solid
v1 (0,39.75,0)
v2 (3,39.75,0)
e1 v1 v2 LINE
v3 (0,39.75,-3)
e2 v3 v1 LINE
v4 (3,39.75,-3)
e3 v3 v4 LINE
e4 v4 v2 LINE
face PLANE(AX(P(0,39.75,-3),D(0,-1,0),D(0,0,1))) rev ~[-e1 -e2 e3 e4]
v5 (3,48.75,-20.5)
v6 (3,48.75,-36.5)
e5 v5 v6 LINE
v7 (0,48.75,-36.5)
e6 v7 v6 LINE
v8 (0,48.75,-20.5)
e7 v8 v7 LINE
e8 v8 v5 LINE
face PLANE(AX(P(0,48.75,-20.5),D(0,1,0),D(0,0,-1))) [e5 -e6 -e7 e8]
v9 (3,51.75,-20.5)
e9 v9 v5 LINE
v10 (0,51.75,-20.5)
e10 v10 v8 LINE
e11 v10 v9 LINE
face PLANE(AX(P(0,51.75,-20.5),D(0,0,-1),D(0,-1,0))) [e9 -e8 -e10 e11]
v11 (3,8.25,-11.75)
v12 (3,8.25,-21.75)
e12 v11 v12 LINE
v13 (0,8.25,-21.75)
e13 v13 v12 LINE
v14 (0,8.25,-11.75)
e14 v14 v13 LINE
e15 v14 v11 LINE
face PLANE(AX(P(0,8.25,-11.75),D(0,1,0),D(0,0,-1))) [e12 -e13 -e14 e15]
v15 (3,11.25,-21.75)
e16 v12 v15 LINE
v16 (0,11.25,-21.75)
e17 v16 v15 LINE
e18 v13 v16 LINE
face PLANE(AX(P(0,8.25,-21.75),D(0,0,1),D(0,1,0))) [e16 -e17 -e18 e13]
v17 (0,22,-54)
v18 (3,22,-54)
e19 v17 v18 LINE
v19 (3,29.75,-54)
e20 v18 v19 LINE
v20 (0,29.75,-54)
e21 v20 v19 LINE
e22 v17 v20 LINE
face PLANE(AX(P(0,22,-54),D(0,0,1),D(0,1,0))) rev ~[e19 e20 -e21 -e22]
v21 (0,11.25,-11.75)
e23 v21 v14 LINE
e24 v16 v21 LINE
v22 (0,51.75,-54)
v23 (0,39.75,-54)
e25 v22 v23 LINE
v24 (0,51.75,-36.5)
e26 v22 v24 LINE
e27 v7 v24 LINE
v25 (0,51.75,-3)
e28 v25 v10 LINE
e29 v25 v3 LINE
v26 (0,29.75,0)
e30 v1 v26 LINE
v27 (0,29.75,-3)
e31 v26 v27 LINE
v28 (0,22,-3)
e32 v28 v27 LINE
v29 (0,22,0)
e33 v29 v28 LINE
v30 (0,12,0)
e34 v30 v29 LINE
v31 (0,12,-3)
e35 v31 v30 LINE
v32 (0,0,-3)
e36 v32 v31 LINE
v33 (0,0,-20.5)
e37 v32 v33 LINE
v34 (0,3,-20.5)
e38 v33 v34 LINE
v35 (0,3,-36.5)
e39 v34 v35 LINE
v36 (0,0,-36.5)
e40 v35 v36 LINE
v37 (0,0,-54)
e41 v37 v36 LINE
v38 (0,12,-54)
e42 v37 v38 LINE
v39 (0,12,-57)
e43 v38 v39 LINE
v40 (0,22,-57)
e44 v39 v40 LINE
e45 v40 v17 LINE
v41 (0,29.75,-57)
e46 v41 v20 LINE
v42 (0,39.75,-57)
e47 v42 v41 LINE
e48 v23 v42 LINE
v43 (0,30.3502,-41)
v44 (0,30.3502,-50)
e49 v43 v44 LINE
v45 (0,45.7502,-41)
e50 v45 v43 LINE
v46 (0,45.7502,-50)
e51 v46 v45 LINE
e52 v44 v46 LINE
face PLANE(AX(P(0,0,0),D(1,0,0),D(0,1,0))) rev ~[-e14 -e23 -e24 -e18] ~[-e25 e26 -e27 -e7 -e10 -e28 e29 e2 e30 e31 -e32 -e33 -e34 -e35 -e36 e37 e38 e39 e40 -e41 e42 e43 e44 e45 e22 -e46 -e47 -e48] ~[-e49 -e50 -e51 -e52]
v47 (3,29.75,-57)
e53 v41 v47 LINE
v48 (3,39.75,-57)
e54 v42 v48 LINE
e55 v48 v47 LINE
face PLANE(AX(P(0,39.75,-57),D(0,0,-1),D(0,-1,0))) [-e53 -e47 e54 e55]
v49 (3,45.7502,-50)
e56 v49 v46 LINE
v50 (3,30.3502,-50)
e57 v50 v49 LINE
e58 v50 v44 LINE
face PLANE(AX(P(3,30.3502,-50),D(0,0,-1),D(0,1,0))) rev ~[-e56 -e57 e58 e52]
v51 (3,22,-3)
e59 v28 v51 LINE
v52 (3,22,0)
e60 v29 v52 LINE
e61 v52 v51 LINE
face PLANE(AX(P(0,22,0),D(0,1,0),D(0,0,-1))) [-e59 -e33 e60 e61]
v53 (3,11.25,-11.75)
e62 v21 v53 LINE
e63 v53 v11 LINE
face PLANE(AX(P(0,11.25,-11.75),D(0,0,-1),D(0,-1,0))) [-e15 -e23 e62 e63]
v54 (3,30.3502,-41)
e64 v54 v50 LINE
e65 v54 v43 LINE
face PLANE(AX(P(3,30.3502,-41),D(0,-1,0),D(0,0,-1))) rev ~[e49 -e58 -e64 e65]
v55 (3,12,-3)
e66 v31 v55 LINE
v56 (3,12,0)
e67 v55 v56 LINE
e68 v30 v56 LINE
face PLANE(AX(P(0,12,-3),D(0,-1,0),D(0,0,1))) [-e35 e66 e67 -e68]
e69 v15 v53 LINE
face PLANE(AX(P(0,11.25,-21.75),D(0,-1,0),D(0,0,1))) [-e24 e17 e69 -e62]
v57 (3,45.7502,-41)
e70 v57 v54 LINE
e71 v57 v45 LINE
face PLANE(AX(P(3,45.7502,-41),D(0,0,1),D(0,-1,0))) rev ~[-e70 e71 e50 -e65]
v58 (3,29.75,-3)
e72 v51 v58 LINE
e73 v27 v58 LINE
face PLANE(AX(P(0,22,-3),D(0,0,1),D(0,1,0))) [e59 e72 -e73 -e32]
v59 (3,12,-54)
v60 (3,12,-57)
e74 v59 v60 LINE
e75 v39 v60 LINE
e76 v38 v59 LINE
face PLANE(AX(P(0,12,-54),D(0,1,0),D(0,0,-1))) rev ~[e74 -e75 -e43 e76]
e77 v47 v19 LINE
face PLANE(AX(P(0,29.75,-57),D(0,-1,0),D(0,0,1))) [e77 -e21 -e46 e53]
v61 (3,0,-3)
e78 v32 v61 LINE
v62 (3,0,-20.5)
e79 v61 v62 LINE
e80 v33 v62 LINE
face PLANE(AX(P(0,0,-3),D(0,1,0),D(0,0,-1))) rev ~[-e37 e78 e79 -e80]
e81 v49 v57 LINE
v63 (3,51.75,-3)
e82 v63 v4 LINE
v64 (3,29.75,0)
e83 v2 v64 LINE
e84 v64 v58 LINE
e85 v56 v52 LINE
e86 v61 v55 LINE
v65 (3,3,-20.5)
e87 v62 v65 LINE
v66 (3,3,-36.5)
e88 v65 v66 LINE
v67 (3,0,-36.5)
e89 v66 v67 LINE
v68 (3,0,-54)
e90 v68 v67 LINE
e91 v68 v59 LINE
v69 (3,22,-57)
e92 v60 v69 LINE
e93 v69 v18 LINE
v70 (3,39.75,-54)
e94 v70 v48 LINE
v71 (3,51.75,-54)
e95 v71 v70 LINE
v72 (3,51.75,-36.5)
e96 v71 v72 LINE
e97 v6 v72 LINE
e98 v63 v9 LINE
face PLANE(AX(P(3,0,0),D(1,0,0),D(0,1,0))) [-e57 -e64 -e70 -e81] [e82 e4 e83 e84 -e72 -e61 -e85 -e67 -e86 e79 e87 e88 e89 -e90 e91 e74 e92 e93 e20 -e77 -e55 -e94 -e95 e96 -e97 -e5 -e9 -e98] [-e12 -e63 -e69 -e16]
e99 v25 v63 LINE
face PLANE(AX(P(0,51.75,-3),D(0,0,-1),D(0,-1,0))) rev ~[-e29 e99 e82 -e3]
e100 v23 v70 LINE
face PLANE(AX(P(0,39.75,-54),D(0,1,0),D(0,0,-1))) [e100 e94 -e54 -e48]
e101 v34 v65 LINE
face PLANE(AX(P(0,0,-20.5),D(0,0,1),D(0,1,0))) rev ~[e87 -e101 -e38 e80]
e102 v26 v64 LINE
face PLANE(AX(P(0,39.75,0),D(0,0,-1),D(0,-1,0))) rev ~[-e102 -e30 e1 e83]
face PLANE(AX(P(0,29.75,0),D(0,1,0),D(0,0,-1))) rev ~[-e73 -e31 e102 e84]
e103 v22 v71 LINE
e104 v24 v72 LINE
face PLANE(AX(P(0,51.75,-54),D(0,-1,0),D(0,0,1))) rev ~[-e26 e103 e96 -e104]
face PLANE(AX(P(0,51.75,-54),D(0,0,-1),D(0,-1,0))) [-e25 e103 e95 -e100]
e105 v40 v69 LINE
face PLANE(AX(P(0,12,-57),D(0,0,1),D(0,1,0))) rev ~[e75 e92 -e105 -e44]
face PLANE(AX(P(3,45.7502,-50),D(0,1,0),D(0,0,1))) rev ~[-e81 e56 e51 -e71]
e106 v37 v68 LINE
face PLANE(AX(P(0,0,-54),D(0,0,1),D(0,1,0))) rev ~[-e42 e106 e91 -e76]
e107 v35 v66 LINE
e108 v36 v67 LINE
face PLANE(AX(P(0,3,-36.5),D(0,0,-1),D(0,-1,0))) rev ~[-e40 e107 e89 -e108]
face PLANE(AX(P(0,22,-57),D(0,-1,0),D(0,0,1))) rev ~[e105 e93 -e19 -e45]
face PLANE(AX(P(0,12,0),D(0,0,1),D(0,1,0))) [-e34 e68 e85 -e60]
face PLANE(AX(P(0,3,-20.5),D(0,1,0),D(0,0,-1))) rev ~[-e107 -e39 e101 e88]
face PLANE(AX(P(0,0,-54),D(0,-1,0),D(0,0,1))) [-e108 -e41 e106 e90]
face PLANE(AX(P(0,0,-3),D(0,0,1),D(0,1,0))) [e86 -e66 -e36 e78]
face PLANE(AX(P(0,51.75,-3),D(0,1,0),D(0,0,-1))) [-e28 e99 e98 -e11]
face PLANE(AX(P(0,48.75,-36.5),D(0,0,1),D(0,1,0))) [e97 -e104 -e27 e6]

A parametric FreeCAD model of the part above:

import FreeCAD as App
import Part
import Sketcher

V = App.Vector

doc = App.newDocument("Part")
body = doc.addObject("PartDesign::Body", "Body")

sketch1 = doc.addObject("Sketcher::SketchObject", "Sketch")
body.addObject(sketch1)
sketch1.AttachmentSupport = (doc.YZ_Plane, [""])
sketch1.MapMode = "FlatFace"
sketch1.addGeometry(Part.LineSegment(V(12, -3, 0), V(0, -3, 0)), False)
sketch1.addGeometry(Part.LineSegment(V(0, -3, 0), V(0, -20.5, 0)), False)
sketch1.addGeometry(Part.LineSegment(V(0, -20.5, 0), V(3, -20.5, 0)), False)
sketch1.addGeometry(Part.LineSegment(V(3, -20.5, 0), V(3, -36.5, 0)), False)
sketch1.addGeometry(Part.LineSegment(V(3, -36.5, 0), V(0, -36.5, 0)), False)
sketch1.addGeometry(Part.LineSegment(V(0, -36.5, 0), V(0, -54, 0)), False)
sketch1.addGeometry(Part.LineSegment(V(0, -54, 0), V(12, -54, 0)), False)
sketch1.addGeometry(Part.LineSegment(V(12, -54, 0), V(12, -57, 0)), False)
sketch1.addGeometry(Part.LineSegment(V(12, -57, 0), V(22, -57, 0)), False)
sketch1.addGeometry(Part.LineSegment(V(22, -57, 0), V(22, -54, 0)), False)
sketch1.addGeometry(Part.LineSegment(V(22, -54, 0), V(29.8, -54, 0)), False)
sketch1.addGeometry(Part.LineSegment(V(29.8, -54, 0), V(29.8, -57, 0)), False)
sketch1.addGeometry(Part.LineSegment(V(29.8, -57, 0), V(39.8, -57, 0)), False)
sketch1.addGeometry(Part.LineSegment(V(39.8, -57, 0), V(39.8, -54, 0)), False)
sketch1.addGeometry(Part.LineSegment(V(39.8, -54, 0), V(51.8, -54, 0)), False)
sketch1.addGeometry(Part.LineSegment(V(51.8, -54, 0), V(51.8, -36.5, 0)), False)
sketch1.addGeometry(Part.LineSegment(V(51.8, -36.5, 0), V(48.8, -36.5, 0)), False)
sketch1.addGeometry(Part.LineSegment(V(48.8, -36.5, 0), V(48.8, -20.5, 0)), False)
sketch1.addGeometry(Part.LineSegment(V(48.8, -20.5, 0), V(51.8, -20.5, 0)), False)
sketch1.addGeometry(Part.LineSegment(V(51.8, -20.5, 0), V(51.8, -3, 0)), False)
sketch1.addGeometry(Part.LineSegment(V(51.8, -3, 0), V(39.8, -3, 0)), False)
sketch1.addGeometry(Part.LineSegment(V(39.8, -3, 0), V(39.8, 0, 0)), False)
sketch1.addGeometry(Part.LineSegment(V(39.8, 0, 0), V(29.8, 0, 0)), False)
sketch1.addGeometry(Part.LineSegment(V(29.8, 0, 0), V(29.8, -3, 0)), False)
sketch1.addGeometry(Part.LineSegment(V(29.8, -3, 0), V(22, -3, 0)), False)
sketch1.addGeometry(Part.LineSegment(V(22, -3, 0), V(22, 0, 0)), False)
sketch1.addGeometry(Part.LineSegment(V(22, 0, 0), V(12, 0, 0)), False)
sketch1.addGeometry(Part.LineSegment(V(12, 0, 0), V(12, -3, 0)), False)
sketch1.addGeometry(Part.LineSegment(V(8.2, -21.8, 0), V(8.2, -11.8, 0)), False)
sketch1.addGeometry(Part.LineSegment(V(8.2, -11.8, 0), V(11.2, -11.8, 0)), False)
sketch1.addGeometry(Part.LineSegment(V(11.2, -11.8, 0), V(11.2, -21.8, 0)), False)
sketch1.addGeometry(Part.LineSegment(V(11.2, -21.8, 0), V(8.2, -21.8, 0)), False)
sketch1.addConstraint(Sketcher.Constraint("Coincident", 0, 2, 1, 1))
sketch1.addConstraint(Sketcher.Constraint("Coincident", 1, 2, 2, 1))
sketch1.addConstraint(Sketcher.Constraint("Coincident", 2, 2, 3, 1))
sketch1.addConstraint(Sketcher.Constraint("Coincident", 3, 2, 4, 1))
sketch1.addConstraint(Sketcher.Constraint("Coincident", 4, 2, 5, 1))
sketch1.addConstraint(Sketcher.Constraint("Coincident", 5, 2, 6, 1))
sketch1.addConstraint(Sketcher.Constraint("Coincident", 6, 2, 7, 1))
sketch1.addConstraint(Sketcher.Constraint("Coincident", 7, 2, 8, 1))
sketch1.addConstraint(Sketcher.Constraint("Coincident", 8, 2, 9, 1))
sketch1.addConstraint(Sketcher.Constraint("Coincident", 9, 2, 10, 1))
sketch1.addConstraint(Sketcher.Constraint("Coincident", 10, 2, 11, 1))
sketch1.addConstraint(Sketcher.Constraint("Coincident", 11, 2, 12, 1))
sketch1.addConstraint(Sketcher.Constraint("Coincident", 12, 2, 13, 1))
sketch1.addConstraint(Sketcher.Constraint("Coincident", 13, 2, 14, 1))
sketch1.addConstraint(Sketcher.Constraint("Coincident", 14, 2, 15, 1))
sketch1.addConstraint(Sketcher.Constraint("Coincident", 15, 2, 16, 1))
sketch1.addConstraint(Sketcher.Constraint("Coincident", 16, 2, 17, 1))
sketch1.addConstraint(Sketcher.Constraint("Coincident", 17, 2, 18, 1))
sketch1.addConstraint(Sketcher.Constraint("Coincident", 18, 2, 19, 1))
sketch1.addConstraint(Sketcher.Constraint("Coincident", 19, 2, 20, 1))
sketch1.addConstraint(Sketcher.Constraint("Coincident", 20, 2, 21, 1))
sketch1.addConstraint(Sketcher.Constraint("Coincident", 21, 2, 22, 1))
sketch1.addConstraint(Sketcher.Constraint("Coincident", 22, 2, 23, 1))
sketch1.addConstraint(Sketcher.Constraint("Coincident", 23, 2, 24, 1))
sketch1.addConstraint(Sketcher.Constraint("Coincident", 24, 2, 25, 1))
sketch1.addConstraint(Sketcher.Constraint("Coincident", 25, 2, 26, 1))
sketch1.addConstraint(Sketcher.Constraint("Coincident", 26, 2, 27, 1))
sketch1.addConstraint(Sketcher.Constraint("Coincident", 27, 2, 0, 1))
sketch1.addConstraint(Sketcher.Constraint("Coincident", 28, 2, 29, 1))
sketch1.addConstraint(Sketcher.Constraint("Coincident", 29, 2, 30, 1))
sketch1.addConstraint(Sketcher.Constraint("Coincident", 30, 2, 31, 1))
sketch1.addConstraint(Sketcher.Constraint("Coincident", 31, 2, 28, 1))
sketch1.addConstraint(Sketcher.Constraint("Horizontal", 0))
sketch1.addConstraint(Sketcher.Constraint("Vertical", 1))
sketch1.addConstraint(Sketcher.Constraint("Horizontal", 2))
sketch1.addConstraint(Sketcher.Constraint("Vertical", 3))
sketch1.addConstraint(Sketcher.Constraint("Horizontal", 4))
sketch1.addConstraint(Sketcher.Constraint("Vertical", 5))
sketch1.addConstraint(Sketcher.Constraint("Horizontal", 6))
sketch1.addConstraint(Sketcher.Constraint("Vertical", 7))
sketch1.addConstraint(Sketcher.Constraint("Horizontal", 8))
sketch1.addConstraint(Sketcher.Constraint("Vertical", 9))
sketch1.addConstraint(Sketcher.Constraint("Horizontal", 10))
sketch1.addConstraint(Sketcher.Constraint("Vertical", 11))
sketch1.addConstraint(Sketcher.Constraint("Horizontal", 12))
sketch1.addConstraint(Sketcher.Constraint("Vertical", 13))
sketch1.addConstraint(Sketcher.Constraint("Horizontal", 14))
sketch1.addConstraint(Sketcher.Constraint("Vertical", 15))
sketch1.addConstraint(Sketcher.Constraint("Horizontal", 16))
sketch1.addConstraint(Sketcher.Constraint("Vertical", 17))
sketch1.addConstraint(Sketcher.Constraint("Horizontal", 18))
sketch1.addConstraint(Sketcher.Constraint("Vertical", 19))
sketch1.addConstraint(Sketcher.Constraint("Horizontal", 20))
sketch1.addConstraint(Sketcher.Constraint("Vertical", 21))
sketch1.addConstraint(Sketcher.Constraint("Horizontal", 22))
sketch1.addConstraint(Sketcher.Constraint("Vertical", 23))
sketch1.addConstraint(Sketcher.Constraint("Horizontal", 24))
sketch1.addConstraint(Sketcher.Constraint("Vertical", 25))
sketch1.addConstraint(Sketcher.Constraint("Horizontal", 26))
sketch1.addConstraint(Sketcher.Constraint("Vertical", 27))
sketch1.addConstraint(Sketcher.Constraint("Vertical", 28))
sketch1.addConstraint(Sketcher.Constraint("Horizontal", 29))
sketch1.addConstraint(Sketcher.Constraint("Vertical", 30))
sketch1.addConstraint(Sketcher.Constraint("Horizontal", 31))
sketch1.addConstraint(Sketcher.Constraint("PointOnObject", 0, 2, -2))
sketch1.addConstraint(Sketcher.Constraint("PointOnObject", 4, 2, -2))
sketch1.addConstraint(Sketcher.Constraint("PointOnObject", 21, 2, -1))
sketch1.addConstraint(Sketcher.Constraint("PointOnObject", 25, 2, -1))
sketch1.addConstraint(Sketcher.Constraint("Horizontal", 6, 2, 9, 2))
sketch1.addConstraint(Sketcher.Constraint("Horizontal", 8, 2, 11, 2))
sketch1.addConstraint(Sketcher.Constraint("Horizontal", 10, 2, 13, 2))
sketch1.addConstraint(Sketcher.Constraint("Horizontal", 4, 2, 15, 2))
sketch1.addConstraint(Sketcher.Constraint("Horizontal", 2, 2, 17, 2))
sketch1.addConstraint(Sketcher.Constraint("Horizontal", 0, 2, 19, 2))
sketch1.addConstraint(Sketcher.Constraint("Horizontal", 20, 2, 23, 2))
sketch1.addConstraint(Sketcher.Constraint("Vertical", 15, 2, 18, 2))
sketch1.addConstraint(Sketcher.Constraint("Vertical", 13, 2, 20, 2))
sketch1.addConstraint(Sketcher.Constraint("Vertical", 11, 2, 22, 2))
sketch1.addConstraint(Sketcher.Constraint("Vertical", 9, 2, 24, 2))
sketch1.addConstraint(Sketcher.Constraint("Vertical", 7, 2, 26, 2))
sketch1.addConstraint(Sketcher.Constraint("Equal", 8, 12))
sketch1.addConstraint(Sketcher.Constraint("Equal", 6, 14))
sketch1.addConstraint(Sketcher.Constraint("Equal", 4, 16))
sketch1.addConstraint(Sketcher.Constraint("Equal", 18, 29))
sketch1.addConstraint(Sketcher.Constraint("Equal", 1, 5))
sketch1.addConstraint(Sketcher.Constraint("Equal", 31, 7))
sketch1.addConstraint(Sketcher.Constraint("Equal", 13, 21))
sketch1.addConstraint(Sketcher.Constraint("Equal", 26, 28))
sketch1.addConstraint(Sketcher.Constraint("DistanceX", 0, 2, 0, 1, 12.0))
sketch1.addConstraint(Sketcher.Constraint("DistanceX", 2, 1, 2, 2, 3.0))
sketch1.addConstraint(Sketcher.Constraint("DistanceX", 8, 1, 8, 2, 10.0))
sketch1.addConstraint(Sketcher.Constraint("DistanceY", 3, 2, 3, 1, 16.0))
sketch1.addConstraint(Sketcher.Constraint("DistanceY", 1, 2, 1, 1, 17.5))
sketch1.addConstraint(Sketcher.Constraint("DistanceX", -1, 1, 14, 2, 51.75))
sketch1.addConstraint(Sketcher.Constraint("DistanceX", -1, 1, 28, 2, 8.25))
sketch1.addConstraint(Sketcher.Constraint("DistanceY", 28, 2, -1, 1, 11.75))
pad1 = doc.addObject("PartDesign::Pad", "Pad")
body.addObject(pad1)
pad1.Profile = sketch1
pad1.Length = 3

sketch2 = doc.addObject("Sketcher::SketchObject", "Sketch001")
body.addObject(sketch2)
sketch2.AttachmentSupport = (doc.YZ_Plane, [""])
sketch2.MapMode = "FlatFace"
sketch2.AttachmentOffset = App.Placement(V(0, 0, 3), App.Rotation())
sketch2.addGeometry(Part.LineSegment(V(30, -41, 0), V(30, -50, 0)), False)
sketch2.addGeometry(Part.LineSegment(V(30, -50, 0), V(46, -50, 0)), False)
sketch2.addGeometry(Part.LineSegment(V(46, -50, 0), V(46, -41, 0)), False)
sketch2.addGeometry(Part.LineSegment(V(46, -41, 0), V(30, -41, 0)), False)
sketch2.addConstraint(Sketcher.Constraint("Coincident", 0, 2, 1, 1))
sketch2.addConstraint(Sketcher.Constraint("Coincident", 1, 2, 2, 1))
sketch2.addConstraint(Sketcher.Constraint("Coincident", 2, 2, 3, 1))
sketch2.addConstraint(Sketcher.Constraint("Coincident", 3, 2, 0, 1))
sketch2.addConstraint(Sketcher.Constraint("Vertical", 0))
sketch2.addConstraint(Sketcher.Constraint("Horizontal", 1))
sketch2.addConstraint(Sketcher.Constraint("Vertical", 2))
sketch2.addConstraint(Sketcher.Constraint("Horizontal", 3))
sketch2.addConstraint(Sketcher.Constraint("DistanceY", 0, 2, 0, 1, 9.0))
sketch2.addConstraint(Sketcher.Constraint("DistanceX", 1, 1, 1, 2, 15.4))
sketch2.addConstraint(Sketcher.Constraint("DistanceY", 0, 2, -1, 1, 50.0))
sketch2.addConstraint(Sketcher.Constraint("DistanceX", -1, 1, 0, 2, 30.3502))
pocket1 = doc.addObject("PartDesign::Pocket", "Pocket")
body.addObject(pocket1)
pocket1.Profile = sketch2
pocket1.Length = 3

doc.recompute()
